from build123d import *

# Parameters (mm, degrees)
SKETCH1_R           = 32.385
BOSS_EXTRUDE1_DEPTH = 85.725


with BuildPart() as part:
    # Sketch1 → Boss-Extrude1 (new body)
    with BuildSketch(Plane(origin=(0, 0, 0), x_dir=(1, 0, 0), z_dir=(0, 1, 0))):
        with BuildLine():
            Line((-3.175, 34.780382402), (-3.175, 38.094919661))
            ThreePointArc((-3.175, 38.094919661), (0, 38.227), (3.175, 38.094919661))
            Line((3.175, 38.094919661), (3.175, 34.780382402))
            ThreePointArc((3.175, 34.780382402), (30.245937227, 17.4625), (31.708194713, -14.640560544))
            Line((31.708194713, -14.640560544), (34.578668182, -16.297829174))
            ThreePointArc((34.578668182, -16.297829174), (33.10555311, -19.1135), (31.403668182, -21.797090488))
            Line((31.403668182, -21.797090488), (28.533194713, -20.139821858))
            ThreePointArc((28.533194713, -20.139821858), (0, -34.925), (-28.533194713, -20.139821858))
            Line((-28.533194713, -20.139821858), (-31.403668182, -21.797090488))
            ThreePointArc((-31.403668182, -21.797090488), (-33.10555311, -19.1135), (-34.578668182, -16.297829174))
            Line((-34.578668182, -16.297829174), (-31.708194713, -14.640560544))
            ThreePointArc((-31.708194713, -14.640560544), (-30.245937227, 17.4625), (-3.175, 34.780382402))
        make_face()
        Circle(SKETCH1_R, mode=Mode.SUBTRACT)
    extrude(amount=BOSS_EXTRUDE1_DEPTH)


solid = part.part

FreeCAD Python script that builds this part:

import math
import FreeCAD as App
import Part
import Sketcher
Q = App.Units.Quantity

doc = App.newDocument("Part")
body = doc.addObject("PartDesign::Body", "Body")

sketch1 = body.newObject("Sketcher::SketchObject", "Sketch")
sketch1.AttachmentSupport = (doc.getObject("XZ_Plane"), [""])
sketch1.MapMode = "FlatFace"
sketch1.addGeometry([
    Part.LineSegment(App.Vector(-3.2, -38.1, 0), App.Vector(-3.2, -34.8, 0)),
    Part.ArcOfCircle(Part.Circle(App.Vector(0, 0, 0), App.Vector(0, 0, 1), 34.9), math.radians(155), math.radians(265)),
    Part.LineSegment(App.Vector(-31.7, 14.6, 0), App.Vector(-34.6, 16.3, 0)),
    Part.ArcOfCircle(Part.Circle(App.Vector(0, 0, 0), App.Vector(0, 0, 1), 38.2), math.radians(145.24), math.radians(154.76)),
    Part.LineSegment(App.Vector(-31.4, 21.8, 0), App.Vector(-28.5, 20.1, 0)),
    Part.ArcOfCircle(Part.Circle(App.Vector(0, 0, 0), App.Vector(0, 0, 1), 34.9), math.radians(35), math.radians(145)),
    Part.LineSegment(App.Vector(28.5, 20.1, 0), App.Vector(31.4, 21.8, 0)),
    Part.ArcOfCircle(Part.Circle(App.Vector(0, 0, 0), App.Vector(0, 0, 1), 38.2), math.radians(25.24), math.radians(34.76)),
    Part.LineSegment(App.Vector(34.6, 16.3, 0), App.Vector(31.7, 14.6, 0)),
    Part.ArcOfCircle(Part.Circle(App.Vector(0, 0, 0), App.Vector(0, 0, 1), 34.9), math.radians(-85), math.radians(25)),
    Part.LineSegment(App.Vector(3.2, -34.8, 0), App.Vector(3.2, -38.1, 0)),
    Part.ArcOfCircle(Part.Circle(App.Vector(0, 0, 0), App.Vector(0, 0, 1), 38.2), math.radians(-94.76), math.radians(-85.24)),
    Part.Circle(App.Vector(0, 0, 0), App.Vector(0, 0, 1), 32.4),
], False)
sketch1.addConstraint([
    Sketcher.Constraint("Coincident", 0, 2, 1, 2),
    Sketcher.Constraint("Coincident", 1, 1, 2, 1),
    Sketcher.Constraint("Coincident", 2, 2, 3, 2),
    Sketcher.Constraint("Coincident", 3, 1, 4, 1),
    Sketcher.Constraint("Coincident", 4, 2, 5, 2),
    Sketcher.Constraint("Coincident", 5, 1, 6, 1),
    Sketcher.Constraint("Coincident", 6, 2, 7, 2),
    Sketcher.Constraint("Coincident", 7, 1, 8, 1),
    Sketcher.Constraint("Coincident", 8, 2, 9, 2),
    Sketcher.Constraint("Coincident", 9, 1, 10, 1),
    Sketcher.Constraint("Coincident", 10, 2, 11, 2),
    Sketcher.Constraint("Coincident", 11, 1, 0, 1),
    Sketcher.Constraint("Vertical", 0),
    Sketcher.Constraint("Vertical", 10),
    Sketcher.Constraint("Coincident", 1, 3, -1, 1),
    Sketcher.Constraint("Coincident", 3, 3, -1, 1),
    Sketcher.Constraint("Coincident", 5, 3, -1, 1),
    Sketcher.Constraint("Coincident", 7, 3, -1, 1),
    Sketcher.Constraint("Coincident", 9, 3, -1, 1),
    Sketcher.Constraint("Coincident", 11, 3, -1, 1),
    Sketcher.Constraint("Coincident", 12, 3, -1, 1),
    Sketcher.Constraint("Equal", 1, 5),
    Sketcher.Constraint("Equal", 3, 7),
    Sketcher.Constraint("Equal", 5, 9),
    Sketcher.Constraint("Equal", 7, 11),
    Sketcher.Constraint("Parallel", 2, 4),
    Sketcher.Constraint("Parallel", 6, 8),
    Sketcher.Constraint("Horizontal", 4, 2, 5, 1),
    Sketcher.Constraint("Horizontal", 3, 1, 6, 2),
    Sketcher.Constraint("Horizontal", 2, 2, 7, 1),
    Sketcher.Constraint("Horizontal", 0, 2, 9, 1),
    Sketcher.Constraint("Equal", 2, 4),
    Sketcher.Constraint("Diameter", 12, Q("2.55 in")),
    Sketcher.Constraint("Angle", 2, Q("150 deg")),
    Sketcher.Constraint("Radius", 1, Q("1.375 in")),
    Sketcher.Constraint("Radius", 3, Q("1.505 in")),
    Sketcher.Constraint("DistanceX", 0, 2, 9, 1, Q("0.25 in")),
    Sketcher.Constraint("DistanceX", 2, 2, 3, 1, Q("0.125 in")),
])
pad1 = body.newObject("PartDesign::Pad", "Pad")
pad1.Profile = sketch1
pad1.Length = Q("3.375 in")
pad1.Reversed = True

doc.recompute()
